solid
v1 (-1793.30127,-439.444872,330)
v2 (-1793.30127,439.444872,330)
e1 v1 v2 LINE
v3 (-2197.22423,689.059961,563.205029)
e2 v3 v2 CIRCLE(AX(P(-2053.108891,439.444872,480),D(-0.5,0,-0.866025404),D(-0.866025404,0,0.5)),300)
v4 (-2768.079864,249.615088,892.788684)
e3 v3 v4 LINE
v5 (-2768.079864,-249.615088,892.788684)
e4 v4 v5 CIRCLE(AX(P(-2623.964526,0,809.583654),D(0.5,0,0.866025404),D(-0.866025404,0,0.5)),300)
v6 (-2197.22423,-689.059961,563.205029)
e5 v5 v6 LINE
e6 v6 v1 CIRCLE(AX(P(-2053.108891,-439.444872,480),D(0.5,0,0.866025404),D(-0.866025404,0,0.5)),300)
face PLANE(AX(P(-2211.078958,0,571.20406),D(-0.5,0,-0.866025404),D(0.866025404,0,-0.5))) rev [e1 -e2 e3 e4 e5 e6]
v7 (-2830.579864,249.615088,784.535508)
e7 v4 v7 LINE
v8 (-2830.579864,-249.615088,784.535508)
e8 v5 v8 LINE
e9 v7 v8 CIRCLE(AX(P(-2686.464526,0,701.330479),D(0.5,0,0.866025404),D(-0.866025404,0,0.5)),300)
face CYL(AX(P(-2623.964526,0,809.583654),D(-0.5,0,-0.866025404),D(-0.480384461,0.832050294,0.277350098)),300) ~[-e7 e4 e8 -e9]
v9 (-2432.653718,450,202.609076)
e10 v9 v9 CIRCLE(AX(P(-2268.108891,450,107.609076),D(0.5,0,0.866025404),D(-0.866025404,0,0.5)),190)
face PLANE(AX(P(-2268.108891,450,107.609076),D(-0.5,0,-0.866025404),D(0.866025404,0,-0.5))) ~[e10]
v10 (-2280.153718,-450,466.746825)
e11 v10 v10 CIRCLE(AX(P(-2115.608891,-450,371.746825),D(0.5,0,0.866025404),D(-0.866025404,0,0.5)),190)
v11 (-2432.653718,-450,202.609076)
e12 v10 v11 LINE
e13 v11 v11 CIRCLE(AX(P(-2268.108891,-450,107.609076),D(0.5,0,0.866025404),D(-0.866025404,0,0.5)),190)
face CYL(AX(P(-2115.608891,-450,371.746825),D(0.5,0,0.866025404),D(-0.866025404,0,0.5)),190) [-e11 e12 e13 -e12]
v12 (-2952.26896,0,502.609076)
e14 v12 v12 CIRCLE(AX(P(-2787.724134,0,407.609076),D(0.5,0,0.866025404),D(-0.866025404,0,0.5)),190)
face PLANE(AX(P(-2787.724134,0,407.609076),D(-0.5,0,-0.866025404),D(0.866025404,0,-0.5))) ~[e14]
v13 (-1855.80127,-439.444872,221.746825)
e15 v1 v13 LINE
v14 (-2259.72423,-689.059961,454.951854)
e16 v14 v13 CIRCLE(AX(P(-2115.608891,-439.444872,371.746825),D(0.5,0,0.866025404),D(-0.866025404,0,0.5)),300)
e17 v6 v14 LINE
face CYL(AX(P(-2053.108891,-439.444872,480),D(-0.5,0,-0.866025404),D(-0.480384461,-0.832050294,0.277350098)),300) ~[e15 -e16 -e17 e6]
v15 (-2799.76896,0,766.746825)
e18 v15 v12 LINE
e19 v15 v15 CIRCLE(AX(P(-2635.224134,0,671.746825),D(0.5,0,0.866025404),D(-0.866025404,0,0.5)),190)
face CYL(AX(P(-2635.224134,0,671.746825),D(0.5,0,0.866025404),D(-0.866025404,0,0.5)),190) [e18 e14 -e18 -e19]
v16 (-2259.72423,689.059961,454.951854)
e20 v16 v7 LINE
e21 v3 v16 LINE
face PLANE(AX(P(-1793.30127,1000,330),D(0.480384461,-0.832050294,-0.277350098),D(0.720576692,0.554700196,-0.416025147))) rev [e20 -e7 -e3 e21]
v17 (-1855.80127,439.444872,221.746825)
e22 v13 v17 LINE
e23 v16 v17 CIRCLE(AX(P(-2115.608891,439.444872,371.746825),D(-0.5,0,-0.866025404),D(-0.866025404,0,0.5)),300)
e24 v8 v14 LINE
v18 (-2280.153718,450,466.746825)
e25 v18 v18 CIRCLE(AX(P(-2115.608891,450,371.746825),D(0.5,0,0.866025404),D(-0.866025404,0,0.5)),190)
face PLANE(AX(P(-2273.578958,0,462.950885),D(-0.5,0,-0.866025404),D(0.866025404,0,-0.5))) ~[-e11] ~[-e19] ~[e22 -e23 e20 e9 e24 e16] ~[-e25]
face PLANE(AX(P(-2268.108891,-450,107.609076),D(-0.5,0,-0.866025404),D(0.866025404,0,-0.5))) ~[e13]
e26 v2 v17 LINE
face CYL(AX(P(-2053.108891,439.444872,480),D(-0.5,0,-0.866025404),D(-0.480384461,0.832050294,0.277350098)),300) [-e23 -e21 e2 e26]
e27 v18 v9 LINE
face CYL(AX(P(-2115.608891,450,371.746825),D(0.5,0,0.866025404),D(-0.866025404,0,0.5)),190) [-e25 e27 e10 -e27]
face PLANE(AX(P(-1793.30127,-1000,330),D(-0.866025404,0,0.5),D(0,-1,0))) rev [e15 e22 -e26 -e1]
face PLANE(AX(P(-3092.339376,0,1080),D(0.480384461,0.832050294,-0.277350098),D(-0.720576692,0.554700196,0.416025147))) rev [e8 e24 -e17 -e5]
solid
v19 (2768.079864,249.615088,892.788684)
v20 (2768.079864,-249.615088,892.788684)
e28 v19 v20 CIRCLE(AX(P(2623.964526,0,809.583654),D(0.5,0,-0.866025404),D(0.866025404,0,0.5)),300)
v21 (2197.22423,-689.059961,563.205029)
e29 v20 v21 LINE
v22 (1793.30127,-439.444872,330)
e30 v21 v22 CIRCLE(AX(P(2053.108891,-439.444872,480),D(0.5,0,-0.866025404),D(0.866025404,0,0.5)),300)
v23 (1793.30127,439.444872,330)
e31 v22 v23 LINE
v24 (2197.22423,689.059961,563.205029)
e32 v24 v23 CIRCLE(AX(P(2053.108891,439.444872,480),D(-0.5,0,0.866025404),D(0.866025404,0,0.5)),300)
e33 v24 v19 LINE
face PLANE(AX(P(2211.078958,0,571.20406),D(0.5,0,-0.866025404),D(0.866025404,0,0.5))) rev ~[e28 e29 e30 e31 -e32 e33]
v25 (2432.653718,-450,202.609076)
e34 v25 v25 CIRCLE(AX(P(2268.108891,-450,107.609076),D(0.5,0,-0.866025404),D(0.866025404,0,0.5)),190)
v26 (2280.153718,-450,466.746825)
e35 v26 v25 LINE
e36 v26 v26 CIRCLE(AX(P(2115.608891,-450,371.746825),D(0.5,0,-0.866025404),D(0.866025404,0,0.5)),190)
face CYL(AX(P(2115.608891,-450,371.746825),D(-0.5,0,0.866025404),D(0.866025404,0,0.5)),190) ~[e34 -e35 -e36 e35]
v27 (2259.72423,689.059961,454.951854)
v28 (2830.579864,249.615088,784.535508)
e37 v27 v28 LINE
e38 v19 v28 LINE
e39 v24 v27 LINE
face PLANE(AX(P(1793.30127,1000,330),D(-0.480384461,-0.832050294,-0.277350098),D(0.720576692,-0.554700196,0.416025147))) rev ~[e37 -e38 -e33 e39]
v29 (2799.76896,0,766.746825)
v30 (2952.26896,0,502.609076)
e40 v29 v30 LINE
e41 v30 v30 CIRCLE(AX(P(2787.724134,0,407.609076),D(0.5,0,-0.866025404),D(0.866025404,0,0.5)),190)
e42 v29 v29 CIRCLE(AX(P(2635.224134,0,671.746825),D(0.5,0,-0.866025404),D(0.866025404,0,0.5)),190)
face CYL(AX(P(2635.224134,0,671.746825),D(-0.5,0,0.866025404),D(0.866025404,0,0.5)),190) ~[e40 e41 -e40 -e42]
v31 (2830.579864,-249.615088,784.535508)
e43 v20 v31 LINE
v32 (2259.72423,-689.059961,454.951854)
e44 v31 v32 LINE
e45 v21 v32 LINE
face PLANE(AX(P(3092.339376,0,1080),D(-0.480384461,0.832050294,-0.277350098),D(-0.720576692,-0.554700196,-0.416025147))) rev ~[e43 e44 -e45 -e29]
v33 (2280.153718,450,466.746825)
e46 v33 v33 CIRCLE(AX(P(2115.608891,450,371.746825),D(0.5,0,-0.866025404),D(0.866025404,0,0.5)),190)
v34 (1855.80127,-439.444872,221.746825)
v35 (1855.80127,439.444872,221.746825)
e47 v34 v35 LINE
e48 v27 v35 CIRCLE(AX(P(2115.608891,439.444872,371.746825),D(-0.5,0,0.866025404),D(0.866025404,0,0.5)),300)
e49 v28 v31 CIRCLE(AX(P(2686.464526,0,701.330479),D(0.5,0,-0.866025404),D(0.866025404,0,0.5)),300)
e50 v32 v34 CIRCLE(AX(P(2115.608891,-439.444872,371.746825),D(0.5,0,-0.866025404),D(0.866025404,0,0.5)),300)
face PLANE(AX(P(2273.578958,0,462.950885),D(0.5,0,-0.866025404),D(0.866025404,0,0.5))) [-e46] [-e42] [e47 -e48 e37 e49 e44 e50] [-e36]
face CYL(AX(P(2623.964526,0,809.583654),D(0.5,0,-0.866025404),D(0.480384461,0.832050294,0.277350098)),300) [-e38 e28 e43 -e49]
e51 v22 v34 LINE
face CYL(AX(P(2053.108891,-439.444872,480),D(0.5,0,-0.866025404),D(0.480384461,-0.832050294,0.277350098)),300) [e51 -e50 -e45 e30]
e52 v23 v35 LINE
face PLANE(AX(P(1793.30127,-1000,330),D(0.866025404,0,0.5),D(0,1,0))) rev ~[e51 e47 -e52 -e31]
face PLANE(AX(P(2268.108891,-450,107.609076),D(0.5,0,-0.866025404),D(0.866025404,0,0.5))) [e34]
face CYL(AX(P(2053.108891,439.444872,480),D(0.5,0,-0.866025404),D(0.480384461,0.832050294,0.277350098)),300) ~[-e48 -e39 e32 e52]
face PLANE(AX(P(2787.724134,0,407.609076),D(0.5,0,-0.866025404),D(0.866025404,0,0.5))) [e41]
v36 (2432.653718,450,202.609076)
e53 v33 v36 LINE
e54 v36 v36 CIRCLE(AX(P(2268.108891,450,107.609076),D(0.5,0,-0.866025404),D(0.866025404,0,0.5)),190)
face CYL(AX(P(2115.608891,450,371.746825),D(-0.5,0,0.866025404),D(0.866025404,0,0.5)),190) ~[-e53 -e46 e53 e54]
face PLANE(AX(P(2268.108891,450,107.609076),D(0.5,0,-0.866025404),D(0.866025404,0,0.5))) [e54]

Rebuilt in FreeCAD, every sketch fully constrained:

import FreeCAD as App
import Part
import Sketcher

V = App.Vector
Q = App.Units.Quantity


def edges_at(feature, points):
    """Names of the edges that pass closest to the given points."""
    edges = feature.Shape.Edges
    near = lambda p: min(range(len(edges)), key=lambda i: edges[i].distToShape(Part.Vertex(*p))[0])
    return sorted({f"Edge{near(p) + 1}" for p in points})


def add_polygon(sketch, points):
    """Adds a closed chain of lines whose ends are joined by coincident constraints."""
    first, n = sketch.GeometryCount, len(points)
    for a, b in zip(points, points[1:] + points[:1]):
        sketch.addGeometry(Part.LineSegment(App.Vector(*a, 0), App.Vector(*b, 0)), False)
    for i in range(n):
        sketch.addConstraint(Sketcher.Constraint("Coincident", first + i, 2, first + (i + 1) % n, 1))

doc = App.newDocument("Part")
body = doc.addObject("PartDesign::Body", "Body")

# Sketch on an angled plane
sketch1 = body.newObject("Sketcher::SketchObject", "Sketch")
sketch1.Placement = App.Placement(V(305.431126, 0, -529.022228), App.Rotation(V(0.866025404, 0, 0.5), V(0, -1, 0), V(0.5, 0, -0.866025404), "ZXY"))
add_polygon(sketch1, [(1718, -1000), (3218, 0), (1718, 1000)])  # lines 0-2
sketch1.addConstraint(Sketcher.Constraint("Vertical", 2))
sketch1.addConstraint(Sketcher.Constraint("PointOnObject", 0, 2, -1))
sketch1.addConstraint(Sketcher.Constraint("Equal", 0, 1))
sketch1.addConstraint(Sketcher.Constraint("DistanceY", 2, 2, 2, 1, Q("2000.000001 mm")))
sketch1.addConstraint(Sketcher.Constraint("DistanceX", 1, 2, 0, 2, Q("1500.000001 mm")))
sketch1.addConstraint(Sketcher.Constraint("DistanceX", -1, 1, 0, 2, Q("3218.044458 mm")))
pad1 = body.newObject("PartDesign::Pad", "Pad")
pad1.Profile = sketch1
pad1.Length = 125
doc.recompute()

fillet = body.newObject("PartDesign::Fillet", "Fillet")
fillet.Base = (pad1, edges_at(pad1, [(3123.589, 0, 1025.873), (1824.551, -1000, 275.873), (1824.551, 1000, 275.873)]))
fillet.Radius = 300

# Sketch on an angled plane
sketch2 = body.newObject("Sketcher::SketchObject", "Sketch001")
sketch2.Placement = App.Placement(V(367.931126, 0, -637.275404), App.Rotation(V(0.866025404, 0, 0.5), V(0, -1, 0), V(0.5, 0, -0.866025404), "ZXY"))
sketch2.addGeometry(Part.Circle(V(2618, 0, 0), V(0, 0, 1), 190), False)
sketch2.addGeometry(Part.Circle(V(2018, -450, 0), V(0, 0, 1), 190), False)
sketch2.addGeometry(Part.Circle(V(2018, 450, 0), V(0, 0, 1), 190), False)
sketch2.addConstraint(Sketcher.Constraint("Equal", 0, 1))
sketch2.addConstraint(Sketcher.Constraint("Equal", 1, 2))
sketch2.addConstraint(Sketcher.Constraint("Symmetric", 1, 3, 2, 3, -1))
sketch2.addConstraint(Sketcher.Constraint("PointOnObject", 0, 3, -1))
sketch2.addConstraint(Sketcher.Constraint("Diameter", 0, Q("380 mm")))
sketch2.addConstraint(Sketcher.Constraint("DistanceY", 1, 3, -1, 1, Q("450 mm")))
sketch2.addConstraint(Sketcher.Constraint("DistanceX", 1, 3, 0, 3, Q("600 mm")))
sketch2.addConstraint(Sketcher.Constraint("DistanceX", -1, 1, 0, 3, Q("2618.044458 mm")))
pad2 = body.newObject("PartDesign::Pad", "Pad001")
pad2.Profile = sketch2
pad2.Length = 305
body2 = doc.addObject("PartDesign::Body", "Body001")
doc.recompute()

mirroring = doc.addObject("Part::Mirroring", "Mirroring")
mirroring.Source = body
mirroring.Base = V(0, 0, 0)
mirroring.Normal = V(1, 0, 0)
body2.BaseFeature = mirroring
doc.recompute()
mirroring.Visibility = False

doc.recompute()
